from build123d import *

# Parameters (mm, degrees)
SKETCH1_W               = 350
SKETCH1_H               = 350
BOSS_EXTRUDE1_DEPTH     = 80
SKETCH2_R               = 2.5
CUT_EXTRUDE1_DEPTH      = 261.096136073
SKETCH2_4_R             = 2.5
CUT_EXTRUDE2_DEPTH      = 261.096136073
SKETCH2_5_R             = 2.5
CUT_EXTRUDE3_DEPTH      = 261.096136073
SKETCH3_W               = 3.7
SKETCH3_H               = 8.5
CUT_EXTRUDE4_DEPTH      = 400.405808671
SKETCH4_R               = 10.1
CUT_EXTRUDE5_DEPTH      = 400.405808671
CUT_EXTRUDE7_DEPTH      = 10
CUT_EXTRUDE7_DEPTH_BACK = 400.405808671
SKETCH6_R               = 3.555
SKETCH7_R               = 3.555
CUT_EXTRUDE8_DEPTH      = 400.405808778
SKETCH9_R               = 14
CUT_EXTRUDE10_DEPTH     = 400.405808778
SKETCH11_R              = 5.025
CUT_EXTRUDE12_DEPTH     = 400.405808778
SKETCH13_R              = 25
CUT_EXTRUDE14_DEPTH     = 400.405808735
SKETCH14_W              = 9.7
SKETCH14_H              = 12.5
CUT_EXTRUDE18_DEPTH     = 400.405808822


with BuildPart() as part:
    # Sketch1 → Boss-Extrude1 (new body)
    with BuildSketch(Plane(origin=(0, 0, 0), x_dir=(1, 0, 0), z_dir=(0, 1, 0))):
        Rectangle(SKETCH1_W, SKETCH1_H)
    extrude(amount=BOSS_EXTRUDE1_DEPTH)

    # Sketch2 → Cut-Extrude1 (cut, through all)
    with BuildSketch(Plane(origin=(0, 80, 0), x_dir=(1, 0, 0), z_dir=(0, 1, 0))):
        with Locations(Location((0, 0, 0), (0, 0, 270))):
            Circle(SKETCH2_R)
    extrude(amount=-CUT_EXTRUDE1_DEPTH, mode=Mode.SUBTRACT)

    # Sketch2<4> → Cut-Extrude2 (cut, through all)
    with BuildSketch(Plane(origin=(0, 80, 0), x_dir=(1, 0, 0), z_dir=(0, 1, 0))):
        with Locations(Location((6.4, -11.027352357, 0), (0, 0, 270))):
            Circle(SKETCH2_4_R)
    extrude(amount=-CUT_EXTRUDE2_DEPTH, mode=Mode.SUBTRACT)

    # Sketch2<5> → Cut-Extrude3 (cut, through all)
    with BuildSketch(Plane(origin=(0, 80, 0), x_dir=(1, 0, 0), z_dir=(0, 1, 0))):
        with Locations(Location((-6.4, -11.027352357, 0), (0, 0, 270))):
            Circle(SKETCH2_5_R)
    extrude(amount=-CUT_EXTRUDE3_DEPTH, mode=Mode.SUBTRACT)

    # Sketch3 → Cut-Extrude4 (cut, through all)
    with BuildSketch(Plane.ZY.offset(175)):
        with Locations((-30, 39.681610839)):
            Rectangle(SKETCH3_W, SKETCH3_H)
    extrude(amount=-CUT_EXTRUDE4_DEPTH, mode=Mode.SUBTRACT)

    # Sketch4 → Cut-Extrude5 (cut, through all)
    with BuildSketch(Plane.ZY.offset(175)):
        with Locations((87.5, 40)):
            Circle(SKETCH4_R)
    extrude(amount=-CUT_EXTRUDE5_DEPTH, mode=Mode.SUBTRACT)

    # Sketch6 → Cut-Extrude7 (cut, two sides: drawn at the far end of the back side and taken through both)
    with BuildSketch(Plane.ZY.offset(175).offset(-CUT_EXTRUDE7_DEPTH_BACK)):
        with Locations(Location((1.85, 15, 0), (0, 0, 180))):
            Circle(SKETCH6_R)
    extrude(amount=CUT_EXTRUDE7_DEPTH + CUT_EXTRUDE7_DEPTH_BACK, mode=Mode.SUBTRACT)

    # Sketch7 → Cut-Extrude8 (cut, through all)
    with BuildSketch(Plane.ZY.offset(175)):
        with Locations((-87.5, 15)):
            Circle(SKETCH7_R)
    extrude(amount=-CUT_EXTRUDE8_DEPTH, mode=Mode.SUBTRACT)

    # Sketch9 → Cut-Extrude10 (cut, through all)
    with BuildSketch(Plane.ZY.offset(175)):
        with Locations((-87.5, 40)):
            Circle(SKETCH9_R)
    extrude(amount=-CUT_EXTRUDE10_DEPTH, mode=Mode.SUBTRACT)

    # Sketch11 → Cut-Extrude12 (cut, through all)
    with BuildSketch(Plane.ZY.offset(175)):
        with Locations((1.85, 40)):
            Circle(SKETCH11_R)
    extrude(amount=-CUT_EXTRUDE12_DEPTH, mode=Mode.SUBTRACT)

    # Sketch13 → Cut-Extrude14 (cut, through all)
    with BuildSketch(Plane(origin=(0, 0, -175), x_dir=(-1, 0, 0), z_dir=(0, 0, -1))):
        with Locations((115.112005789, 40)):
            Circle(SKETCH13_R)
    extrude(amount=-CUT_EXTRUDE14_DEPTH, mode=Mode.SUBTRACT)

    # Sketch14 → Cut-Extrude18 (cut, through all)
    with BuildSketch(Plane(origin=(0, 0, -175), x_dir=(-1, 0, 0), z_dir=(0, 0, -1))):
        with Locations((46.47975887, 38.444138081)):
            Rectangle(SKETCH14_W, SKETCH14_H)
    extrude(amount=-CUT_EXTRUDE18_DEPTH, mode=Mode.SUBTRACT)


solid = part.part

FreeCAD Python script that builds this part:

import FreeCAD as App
import Part
import Sketcher

V = App.Vector

doc = App.newDocument("Part")
body = doc.addObject("PartDesign::Body", "Body")

sketch1 = body.newObject("Sketcher::SketchObject", "Sketch")
sketch1.AttachmentSupport = (doc.getObject("XZ_Plane"), [""])
sketch1.MapMode = "FlatFace"
sketch1.addGeometry([
    Part.LineSegment(V(-175, -175, 0), V(-175, 175, 0)),
    Part.LineSegment(V(-175, 175, 0), V(175, 175, 0)),
    Part.LineSegment(V(175, 175, 0), V(175, -175, 0)),
    Part.LineSegment(V(175, -175, 0), V(-175, -175, 0)),
], False)
sketch1.addConstraint([
    Sketcher.Constraint("Coincident", 0, 2, 1, 1),
    Sketcher.Constraint("Coincident", 1, 2, 2, 1),
    Sketcher.Constraint("Coincident", 2, 2, 3, 1),
    Sketcher.Constraint("Coincident", 3, 2, 0, 1),
    Sketcher.Constraint("Vertical", 0),
    Sketcher.Constraint("Horizontal", 1),
    Sketcher.Constraint("Vertical", 2),
    Sketcher.Constraint("Horizontal", 3),
    Sketcher.Constraint("Symmetric", 0, 2, 2, 2, -1, 1),
    Sketcher.Constraint("Equal", 3, 0),
    Sketcher.Constraint("DistanceX", 1, 1, 1, 2, 350.0),
])
pad1 = body.newObject("PartDesign::Pad", "Pad")
pad1.Profile = sketch1
pad1.Length = 80
pad1.Reversed = True

sketch2 = body.newObject("Sketcher::SketchObject", "Sketch001")
sketch2.AttachmentSupport = (doc.getObject("XZ_Plane"), [""])
sketch2.MapMode = "FlatFace"
sketch2.AttachmentOffset = App.Placement(V(0, 0, -80), App.Rotation())
sketch2.addGeometry(Part.Circle(V(0, 0, 0), V(0, 0, 1), 2.5), False)
sketch2.addConstraint([
    Sketcher.Constraint("Coincident", 0, 3, -1, 1),
    Sketcher.Constraint("Diameter", 0, 5.0),
])
pocket1 = body.newObject("PartDesign::Pocket", "Pocket")
pocket1.Profile = sketch2
pocket1.Type = "ThroughAll"
pocket1.Reversed = True

sketch3 = body.newObject("Sketcher::SketchObject", "Sketch002")
sketch3.AttachmentSupport = (doc.getObject("XZ_Plane"), [""])
sketch3.MapMode = "FlatFace"
sketch3.AttachmentOffset = App.Placement(V(0, 0, -80), App.Rotation())
sketch3.addGeometry(Part.Circle(V(6.4, 11, 0), V(0, 0, 1), 2.5), False)
sketch3.addConstraint([
    Sketcher.Constraint("Diameter", 0, 5.0),
    Sketcher.Constraint("DistanceX", -1, 1, 0, 3, 6.4),
    Sketcher.Constraint("DistanceY", -1, 1, 0, 3, 11.027352),
])
pocket2 = body.newObject("PartDesign::Pocket", "Pocket001")
pocket2.Profile = sketch3
pocket2.Type = "ThroughAll"
pocket2.Reversed = True

sketch4 = body.newObject("Sketcher::SketchObject", "Sketch003")
sketch4.AttachmentSupport = (doc.getObject("XZ_Plane"), [""])
sketch4.MapMode = "FlatFace"
sketch4.AttachmentOffset = App.Placement(V(0, 0, -80), App.Rotation())
sketch4.addGeometry(Part.Circle(V(-6.4, 11, 0), V(0, 0, 1), 2.5), False)
sketch4.addConstraint([
    Sketcher.Constraint("Diameter", 0, 5.0),
    Sketcher.Constraint("DistanceX", 0, 3, -1, 1, 6.4),
    Sketcher.Constraint("DistanceY", -1, 1, 0, 3, 11.027352),
])
pocket3 = body.newObject("PartDesign::Pocket", "Pocket002")
pocket3.Profile = sketch4
pocket3.Type = "ThroughAll"
pocket3.Reversed = True

sketch5 = body.newObject("Sketcher::SketchObject", "Sketch004")
sketch5.AttachmentSupport = (doc.getObject("YZ_Plane"), [""])
sketch5.MapMode = "FlatFace"
sketch5.AttachmentOffset = App.Placement(V(0, 0, -175), App.Rotation())
sketch5.addGeometry([
    Part.LineSegment(V(43.9, -31.9, 0), V(35.4, -31.9, 0)),
    Part.LineSegment(V(35.4, -31.9, 0), V(35.4, -28.1, 0)),
    Part.LineSegment(V(35.4, -28.1, 0), V(43.9, -28.1, 0)),
    Part.LineSegment(V(43.9, -28.1, 0), V(43.9, -31.9, 0)),
], False)
sketch5.addConstraint([
    Sketcher.Constraint("Coincident", 0, 2, 1, 1),
    Sketcher.Constraint("Coincident", 1, 2, 2, 1),
    Sketcher.Constraint("Coincident", 2, 2, 3, 1),
    Sketcher.Constraint("Coincident", 3, 2, 0, 1),
    Sketcher.Constraint("Horizontal", 0),
    Sketcher.Constraint("Vertical", 1),
    Sketcher.Constraint("Horizontal", 2),
    Sketcher.Constraint("Vertical", 3),
    Sketcher.Constraint("DistanceX", 0, 2, 0, 1, 8.5),
    Sketcher.Constraint("DistanceY", 1, 1, 1, 2, 3.7),
    Sketcher.Constraint("DistanceY", 0, 2, -1, 1, 31.85),
    Sketcher.Constraint("DistanceX", -1, 1, 0, 2, 35.431611),
])
pocket4 = body.newObject("PartDesign::Pocket", "Pocket003")
pocket4.Profile = sketch5
pocket4.Type = "ThroughAll"
pocket4.Reversed = True

sketch6 = body.newObject("Sketcher::SketchObject", "Sketch005")
sketch6.AttachmentSupport = (doc.getObject("YZ_Plane"), [""])
sketch6.MapMode = "FlatFace"
sketch6.AttachmentOffset = App.Placement(V(0, 0, -175), App.Rotation())
sketch6.addGeometry(Part.Circle(V(40, 88, 0), V(0, 0, 1), 10), False)
sketch6.addConstraint([
    Sketcher.Constraint("Diameter", 0, 20.2),
    Sketcher.Constraint("DistanceX", -1, 1, 0, 3, 40.0),
    Sketcher.Constraint("DistanceY", -1, 1, 0, 3, 87.5),
])
pocket5 = body.newObject("PartDesign::Pocket", "Pocket004")
pocket5.Profile = sketch6
pocket5.Type = "ThroughAll"
pocket5.Reversed = True

sketch7 = body.newObject("Sketcher::SketchObject", "Sketch006")
sketch7.AttachmentSupport = (doc.getObject("YZ_Plane"), [""])
sketch7.MapMode = "FlatFace"
sketch7.AttachmentOffset = App.Placement(V(0, 0, -175), App.Rotation())
sketch7.addGeometry(Part.Circle(V(15, 1.9, 0), V(0, 0, 1), 3.6), False)
sketch7.addConstraint([
    Sketcher.Constraint("Diameter", 0, 7.11),
    Sketcher.Constraint("DistanceX", -1, 1, 0, 3, 15.0),
    Sketcher.Constraint("DistanceY", -1, 1, 0, 3, 1.85),
])
pocket6 = body.newObject("PartDesign::Pocket", "Pocket005")
pocket6.Profile = sketch7
pocket6.Type = "ThroughAll"
pocket6.Midplane = True

sketch8 = body.newObject("Sketcher::SketchObject", "Sketch007")
sketch8.AttachmentSupport = (doc.getObject("YZ_Plane"), [""])
sketch8.MapMode = "FlatFace"
sketch8.AttachmentOffset = App.Placement(V(0, 0, -175), App.Rotation())
sketch8.addGeometry(Part.Circle(V(15, -87.5, 0), V(0, 0, 1), 3.6), False)
sketch8.addConstraint([
    Sketcher.Constraint("Diameter", 0, 7.11),
    Sketcher.Constraint("DistanceX", -1, 1, 0, 3, 15.0),
    Sketcher.Constraint("DistanceY", 0, 3, -1, 1, 87.5),
])
pocket7 = body.newObject("PartDesign::Pocket", "Pocket006")
pocket7.Profile = sketch8
pocket7.Type = "ThroughAll"
pocket7.Reversed = True

sketch9 = body.newObject("Sketcher::SketchObject", "Sketch008")
sketch9.AttachmentSupport = (doc.getObject("YZ_Plane"), [""])
sketch9.MapMode = "FlatFace"
sketch9.AttachmentOffset = App.Placement(V(0, 0, -175), App.Rotation())
sketch9.addGeometry(Part.Circle(V(40, -88, 0), V(0, 0, 1), 14), False)
sketch9.addConstraint([
    Sketcher.Constraint("Diameter", 0, 28.0),
    Sketcher.Constraint("DistanceX", -1, 1, 0, 3, 40.0),
    Sketcher.Constraint("DistanceY", 0, 3, -1, 1, 87.5),
])
pocket8 = body.newObject("PartDesign::Pocket", "Pocket007")
pocket8.Profile = sketch9
pocket8.Type = "ThroughAll"
pocket8.Reversed = True

sketch10 = body.newObject("Sketcher::SketchObject", "Sketch009")
sketch10.AttachmentSupport = (doc.getObject("YZ_Plane"), [""])
sketch10.MapMode = "FlatFace"
sketch10.AttachmentOffset = App.Placement(V(0, 0, -175), App.Rotation())
sketch10.addGeometry(Part.Circle(V(40, 2, 0), V(0, 0, 1), 5), False)
sketch10.addConstraint([
    Sketcher.Constraint("Diameter", 0, 10.05),
    Sketcher.Constraint("DistanceX", -1, 1, 0, 3, 40.0),
    Sketcher.Constraint("DistanceY", -1, 1, 0, 3, 1.85),
])
pocket9 = body.newObject("PartDesign::Pocket", "Pocket008")
pocket9.Profile = sketch10
pocket9.Type = "ThroughAll"
pocket9.Reversed = True

sketch11 = body.newObject("Sketcher::SketchObject", "Sketch010")
sketch11.AttachmentSupport = (doc.getObject("XY_Plane"), [""])
sketch11.MapMode = "FlatFace"
sketch11.AttachmentOffset = App.Placement(V(0, 0, -175), App.Rotation())
sketch11.addGeometry(Part.Circle(V(-115, 40, 0), V(0, 0, 1), 25), False)
sketch11.addConstraint([
    Sketcher.Constraint("Diameter", 0, 50.0),
    Sketcher.Constraint("DistanceY", -1, 1, 0, 3, 40.0),
    Sketcher.Constraint("DistanceX", 0, 3, -1, 1, 115.112006),
])
pocket10 = body.newObject("PartDesign::Pocket", "Pocket009")
pocket10.Profile = sketch11
pocket10.Type = "ThroughAll"
pocket10.Reversed = True

sketch12 = body.newObject("Sketcher::SketchObject", "Sketch011")
sketch12.AttachmentSupport = (doc.getObject("XY_Plane"), [""])
sketch12.MapMode = "FlatFace"
sketch12.AttachmentOffset = App.Placement(V(0, 0, -175), App.Rotation())
sketch12.addGeometry([
    Part.LineSegment(V(-42, 45, 0), V(-42, 32, 0)),
    Part.LineSegment(V(-42, 32, 0), V(-51, 32, 0)),
    Part.LineSegment(V(-51, 32, 0), V(-51, 45, 0)),
    Part.LineSegment(V(-51, 45, 0), V(-42, 45, 0)),
], False)
sketch12.addConstraint([
    Sketcher.Constraint("Coincident", 0, 2, 1, 1),
    Sketcher.Constraint("Coincident", 1, 2, 2, 1),
    Sketcher.Constraint("Coincident", 2, 2, 3, 1),
    Sketcher.Constraint("Coincident", 3, 2, 0, 1),
    Sketcher.Constraint("Vertical", 0),
    Sketcher.Constraint("Horizontal", 1),
    Sketcher.Constraint("Vertical", 2),
    Sketcher.Constraint("Horizontal", 3),
    Sketcher.Constraint("DistanceX", 1, 2, 1, 1, 9.7),
    Sketcher.Constraint("DistanceY", 0, 2, 0, 1, 12.5),
    Sketcher.Constraint("DistanceX", 0, 2, -1, 1, 41.629759),
    Sketcher.Constraint("DistanceY", -1, 1, 0, 2, 32.194138),
])
pocket11 = body.newObject("PartDesign::Pocket", "Pocket010")
pocket11.Profile = sketch12
pocket11.Type = "ThroughAll"
pocket11.Reversed = True

doc.recompute()
